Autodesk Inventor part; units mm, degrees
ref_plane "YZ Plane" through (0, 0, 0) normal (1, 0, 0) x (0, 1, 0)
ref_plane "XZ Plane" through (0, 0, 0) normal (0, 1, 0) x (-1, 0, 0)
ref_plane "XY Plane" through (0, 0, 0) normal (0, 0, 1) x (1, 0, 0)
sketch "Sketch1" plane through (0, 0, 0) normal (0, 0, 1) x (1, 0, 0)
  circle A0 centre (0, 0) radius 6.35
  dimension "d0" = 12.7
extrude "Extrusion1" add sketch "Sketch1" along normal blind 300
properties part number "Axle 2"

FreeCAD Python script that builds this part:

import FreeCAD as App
import Part
import Sketcher
Q = App.Units.Quantity

doc = App.newDocument("Part")
body = doc.addObject("PartDesign::Body", "Body")

sketch1 = body.newObject("Sketcher::SketchObject", "Sketch")
sketch1.AttachmentSupport = (doc.getObject("XY_Plane"), [""])
sketch1.MapMode = "FlatFace"
sketch1.addGeometry(Part.Circle(App.Vector(0, 0, 0), App.Vector(0, 0, 1), 6), False)
sketch1.addConstraint([
    Sketcher.Constraint("Coincident", 0, 3, -1, 1),
    Sketcher.Constraint("Diameter", 0, Q("12.7 mm")),
])
pad1 = body.newObject("PartDesign::Pad", "Pad")
pad1.Profile = sketch1
pad1.Length = 300

doc.recompute()
